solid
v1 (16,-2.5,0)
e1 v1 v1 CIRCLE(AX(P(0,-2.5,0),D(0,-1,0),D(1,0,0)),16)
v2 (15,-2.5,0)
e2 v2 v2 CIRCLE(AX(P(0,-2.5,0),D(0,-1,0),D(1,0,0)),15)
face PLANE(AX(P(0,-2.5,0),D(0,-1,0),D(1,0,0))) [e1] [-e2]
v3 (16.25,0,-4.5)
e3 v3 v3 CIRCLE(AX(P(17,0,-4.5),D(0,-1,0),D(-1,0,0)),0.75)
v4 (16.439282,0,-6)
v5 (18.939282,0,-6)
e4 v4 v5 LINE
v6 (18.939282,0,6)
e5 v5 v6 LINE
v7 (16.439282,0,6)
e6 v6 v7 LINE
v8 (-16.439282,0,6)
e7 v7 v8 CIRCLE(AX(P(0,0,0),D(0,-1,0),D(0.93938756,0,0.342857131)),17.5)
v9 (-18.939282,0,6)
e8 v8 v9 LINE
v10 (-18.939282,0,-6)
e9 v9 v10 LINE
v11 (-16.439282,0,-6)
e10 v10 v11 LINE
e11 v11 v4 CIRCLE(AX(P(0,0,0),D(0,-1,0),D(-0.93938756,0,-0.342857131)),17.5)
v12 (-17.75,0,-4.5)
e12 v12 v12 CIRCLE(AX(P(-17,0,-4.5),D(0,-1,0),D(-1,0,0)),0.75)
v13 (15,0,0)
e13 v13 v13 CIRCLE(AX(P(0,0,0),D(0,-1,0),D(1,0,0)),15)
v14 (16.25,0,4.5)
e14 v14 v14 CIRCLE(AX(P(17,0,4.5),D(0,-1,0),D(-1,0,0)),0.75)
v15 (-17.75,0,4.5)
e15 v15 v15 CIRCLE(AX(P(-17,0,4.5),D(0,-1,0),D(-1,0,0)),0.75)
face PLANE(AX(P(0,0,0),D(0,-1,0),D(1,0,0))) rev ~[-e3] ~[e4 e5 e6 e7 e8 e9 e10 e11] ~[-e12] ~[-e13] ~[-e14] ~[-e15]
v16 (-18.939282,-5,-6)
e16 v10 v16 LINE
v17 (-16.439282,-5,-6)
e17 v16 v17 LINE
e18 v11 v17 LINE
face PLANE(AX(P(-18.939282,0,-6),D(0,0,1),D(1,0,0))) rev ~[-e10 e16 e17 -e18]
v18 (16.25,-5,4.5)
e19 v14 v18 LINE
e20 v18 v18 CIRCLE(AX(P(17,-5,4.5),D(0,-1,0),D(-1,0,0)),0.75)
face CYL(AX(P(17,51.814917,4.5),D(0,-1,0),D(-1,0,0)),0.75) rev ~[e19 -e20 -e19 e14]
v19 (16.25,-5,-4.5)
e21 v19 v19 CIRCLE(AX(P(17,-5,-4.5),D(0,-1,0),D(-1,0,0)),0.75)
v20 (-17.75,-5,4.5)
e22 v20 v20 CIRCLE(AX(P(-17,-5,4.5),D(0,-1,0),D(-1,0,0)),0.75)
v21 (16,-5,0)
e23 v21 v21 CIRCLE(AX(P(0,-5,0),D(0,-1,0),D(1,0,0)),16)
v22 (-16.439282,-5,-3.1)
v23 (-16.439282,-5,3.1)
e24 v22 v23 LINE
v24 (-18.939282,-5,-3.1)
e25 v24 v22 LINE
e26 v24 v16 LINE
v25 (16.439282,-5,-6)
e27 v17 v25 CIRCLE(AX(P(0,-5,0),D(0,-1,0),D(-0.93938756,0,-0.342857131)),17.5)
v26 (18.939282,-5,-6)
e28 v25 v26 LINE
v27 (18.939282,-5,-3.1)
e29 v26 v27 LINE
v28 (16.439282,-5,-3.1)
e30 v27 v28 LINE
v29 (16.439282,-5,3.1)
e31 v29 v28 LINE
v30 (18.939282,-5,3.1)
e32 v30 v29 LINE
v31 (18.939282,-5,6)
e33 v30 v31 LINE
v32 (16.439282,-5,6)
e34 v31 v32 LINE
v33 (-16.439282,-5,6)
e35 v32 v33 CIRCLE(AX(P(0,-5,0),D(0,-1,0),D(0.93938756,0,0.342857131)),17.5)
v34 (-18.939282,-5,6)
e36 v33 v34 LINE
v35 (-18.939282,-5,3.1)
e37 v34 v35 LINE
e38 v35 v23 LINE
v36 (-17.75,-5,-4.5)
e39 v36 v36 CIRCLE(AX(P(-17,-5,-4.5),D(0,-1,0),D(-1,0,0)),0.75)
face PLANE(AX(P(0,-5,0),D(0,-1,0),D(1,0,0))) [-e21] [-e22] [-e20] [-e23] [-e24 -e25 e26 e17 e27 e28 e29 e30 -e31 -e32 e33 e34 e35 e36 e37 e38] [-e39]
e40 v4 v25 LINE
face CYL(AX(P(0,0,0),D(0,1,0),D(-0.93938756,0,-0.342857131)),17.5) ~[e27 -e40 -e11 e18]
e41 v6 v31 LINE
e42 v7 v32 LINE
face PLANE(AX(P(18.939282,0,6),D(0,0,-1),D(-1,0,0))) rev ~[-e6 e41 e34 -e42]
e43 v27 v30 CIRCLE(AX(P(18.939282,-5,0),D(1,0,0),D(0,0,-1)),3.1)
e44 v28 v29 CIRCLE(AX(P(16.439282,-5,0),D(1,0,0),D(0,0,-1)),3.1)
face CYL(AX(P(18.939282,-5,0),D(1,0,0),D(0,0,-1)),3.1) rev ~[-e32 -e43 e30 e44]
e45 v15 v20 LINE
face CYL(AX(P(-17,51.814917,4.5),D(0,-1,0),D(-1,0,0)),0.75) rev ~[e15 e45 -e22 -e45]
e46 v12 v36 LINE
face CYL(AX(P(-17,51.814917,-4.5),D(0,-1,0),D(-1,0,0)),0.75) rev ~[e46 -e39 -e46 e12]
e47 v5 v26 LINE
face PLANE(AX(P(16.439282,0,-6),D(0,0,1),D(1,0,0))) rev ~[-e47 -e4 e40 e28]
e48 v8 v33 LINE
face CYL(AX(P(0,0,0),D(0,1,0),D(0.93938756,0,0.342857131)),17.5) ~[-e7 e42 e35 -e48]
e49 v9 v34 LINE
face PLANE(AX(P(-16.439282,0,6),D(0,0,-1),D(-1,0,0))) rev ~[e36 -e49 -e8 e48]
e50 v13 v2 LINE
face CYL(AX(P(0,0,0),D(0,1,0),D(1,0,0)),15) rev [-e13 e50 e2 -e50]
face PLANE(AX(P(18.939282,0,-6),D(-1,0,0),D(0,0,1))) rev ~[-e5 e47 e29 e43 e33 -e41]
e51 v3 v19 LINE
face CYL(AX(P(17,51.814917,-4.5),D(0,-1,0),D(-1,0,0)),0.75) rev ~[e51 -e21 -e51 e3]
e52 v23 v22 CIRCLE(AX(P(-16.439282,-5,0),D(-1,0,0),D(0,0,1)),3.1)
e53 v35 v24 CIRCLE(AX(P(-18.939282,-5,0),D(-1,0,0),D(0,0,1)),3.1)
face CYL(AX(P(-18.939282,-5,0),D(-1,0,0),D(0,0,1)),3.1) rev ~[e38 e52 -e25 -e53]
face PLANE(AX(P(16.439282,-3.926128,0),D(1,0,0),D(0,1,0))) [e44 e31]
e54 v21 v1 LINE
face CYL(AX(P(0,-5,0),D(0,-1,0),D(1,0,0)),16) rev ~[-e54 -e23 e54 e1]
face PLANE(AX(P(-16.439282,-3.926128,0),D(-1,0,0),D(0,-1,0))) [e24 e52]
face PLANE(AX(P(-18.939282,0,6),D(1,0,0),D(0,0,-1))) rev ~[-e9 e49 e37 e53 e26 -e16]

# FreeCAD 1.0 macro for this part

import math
import FreeCAD as App
import Part
import Sketcher

V = App.Vector
Q = App.Units.Quantity

doc = App.newDocument("Part")
body = doc.addObject("PartDesign::Body", "Body")

sketch1 = doc.addObject("Sketcher::SketchObject", "Sketch")
body.addObject(sketch1)
sketch1.AttachmentSupport = (doc.XZ_Plane, [""])
sketch1.MapMode = "FlatFace"
sketch1.addGeometry([
    Part.LineSegment(V(-18.9, -6, 0), V(-16.4, -6, 0)),
    Part.ArcOfCircle(Part.Circle(V(0, 0, 0), V(0, 0, 1), 17.5), math.radians(-160), math.radians(-20)),
    Part.LineSegment(V(16.4, -6, 0), V(18.9, -6, 0)),
    Part.LineSegment(V(18.9, -6, 0), V(18.9, 6, 0)),
    Part.LineSegment(V(18.9, 6, 0), V(16.4, 6, 0)),
    Part.ArcOfCircle(Part.Circle(V(0, 0, 0), V(0, 0, 1), 17.5), math.radians(20), math.radians(160)),
    Part.LineSegment(V(-16.4, 6, 0), V(-18.9, 6, 0)),
    Part.LineSegment(V(-18.9, 6, 0), V(-18.9, -6, 0)),
    Part.Circle(V(0, 0, 0), V(0, 0, 1), 15),
], False)
sketch1.addConstraint([
    Sketcher.Constraint("Coincident", 0, 2, 1, 1),
    Sketcher.Constraint("Coincident", 1, 2, 2, 1),
    Sketcher.Constraint("Coincident", 2, 2, 3, 1),
    Sketcher.Constraint("Coincident", 3, 2, 4, 1),
    Sketcher.Constraint("Coincident", 4, 2, 5, 1),
    Sketcher.Constraint("Coincident", 5, 2, 6, 1),
    Sketcher.Constraint("Coincident", 6, 2, 7, 1),
    Sketcher.Constraint("Coincident", 7, 2, 0, 1),
    Sketcher.Constraint("Horizontal", 0),
    Sketcher.Constraint("Horizontal", 2),
    Sketcher.Constraint("Vertical", 3),
    Sketcher.Constraint("Horizontal", 4),
    Sketcher.Constraint("Horizontal", 6),
    Sketcher.Constraint("Vertical", 7),
    Sketcher.Constraint("Coincident", 1, 3, -1, 1),
    Sketcher.Constraint("Coincident", 5, 3, -1, 1),
    Sketcher.Constraint("Coincident", 8, 3, -1, 1),
    Sketcher.Constraint("Equal", 1, 5),
    Sketcher.Constraint("Symmetric", 2, 2, 6, 2, -1, 1),
    Sketcher.Constraint("Horizontal", 0, 2, 1, 2),
    Sketcher.Constraint("Horizontal", 4, 2, 5, 2),
    Sketcher.Constraint("Diameter", 8, Q("30 mm")),
    Sketcher.Constraint("Radius", 1, Q("17.5 mm")),
    Sketcher.Constraint("DistanceY", 3, 1, 3, 2, Q("12 mm")),
    Sketcher.Constraint("DistanceX", 0, 1, 0, 2, Q("2.5 mm")),
])
pad1 = doc.addObject("PartDesign::Pad", "Pad")
body.addObject(pad1)
pad1.Profile = sketch1
pad1.Length = 5

sketch2 = doc.addObject("Sketcher::SketchObject", "Sketch001")
body.addObject(sketch2)
sketch2.AttachmentSupport = (doc.XZ_Plane, [""])
sketch2.MapMode = "FlatFace"
sketch2.AttachmentOffset = App.Placement(V(0, 0, 5), App.Rotation())
sketch2.addGeometry([
    Part.Circle(V(0, 0, 0), V(0, 0, 1), 16),
    Part.Circle(V(0, 0, 0), V(0, 0, 1), 15),
], False)
sketch2.addConstraint([
    Sketcher.Constraint("Coincident", 0, 3, -1, 1),
    Sketcher.Constraint("Coincident", 1, 3, -1, 1),
    Sketcher.Constraint("Diameter", 0, Q("32 mm")),
    Sketcher.Constraint("Diameter", 1, Q("30 mm")),
])
pocket1 = doc.addObject("PartDesign::Pocket", "Pocket")
body.addObject(pocket1)
pocket1.Profile = sketch2
pocket1.Length = 2.5

sketch3 = doc.addObject("Sketcher::SketchObject", "Sketch002")
body.addObject(sketch3)
sketch3.AttachmentSupport = (doc.YZ_Plane, [""])
sketch3.MapMode = "FlatFace"
sketch3.AttachmentOffset = App.Placement(V(0, 0, -18.939282), App.Rotation())
sketch3.addGeometry([
    Part.LineSegment(V(-5, -3.1, 0), V(-5, 3.1, 0)),
    Part.ArcOfCircle(Part.Circle(V(-5, 0, 0), V(0, 0, 1), 3.1), math.radians(-90), math.radians(90)),
], False)
sketch3.addConstraint([
    Sketcher.Constraint("Coincident", 0, 1, 1, 1),
    Sketcher.Constraint("Coincident", 1, 2, 0, 2),
    Sketcher.Constraint("Vertical", 0),
    Sketcher.Constraint("PointOnObject", 1, 3, -1),
    Sketcher.Constraint("Vertical", 1, 3, 0, 1),
    Sketcher.Constraint("Radius", 1, Q("3.1 mm")),
    Sketcher.Constraint("DistanceX", 1, 3, -1, 1, Q("5 mm")),
])
pocket2 = doc.addObject("PartDesign::Pocket", "Pocket001")
body.addObject(pocket2)
pocket2.Profile = sketch3
pocket2.Length = 2.5
pocket2.Reversed = True

sketch4 = doc.addObject("Sketcher::SketchObject", "Sketch003")
body.addObject(sketch4)
sketch4.AttachmentSupport = (doc.YZ_Plane, [""])
sketch4.MapMode = "FlatFace"
sketch4.AttachmentOffset = App.Placement(V(0, 0, 18.939282), App.Rotation())
sketch4.addGeometry([
    Part.ArcOfCircle(Part.Circle(V(-5, 0, 0), V(0, 0, 1), 3.1), math.radians(-90), math.radians(90)),
    Part.LineSegment(V(-5, 3.1, 0), V(-5, -3.1, 0)),
], False)
sketch4.addConstraint([
    Sketcher.Constraint("Coincident", 0, 1, 1, 2),
    Sketcher.Constraint("Coincident", 1, 1, 0, 2),
    Sketcher.Constraint("Vertical", 1),
    Sketcher.Constraint("PointOnObject", 0, 3, -1),
    Sketcher.Constraint("Radius", 0, Q("3.1 mm")),
    Sketcher.Constraint("DistanceX", 0, 3, -1, 1, Q("5 mm")),
    Sketcher.Constraint("DistanceX", 0, 1, -1, 1, Q("5 mm")),
])
pocket3 = doc.addObject("PartDesign::Pocket", "Pocket002")
body.addObject(pocket3)
pocket3.Profile = sketch4
pocket3.Length = 2.5

sketch5 = doc.addObject("Sketcher::SketchObject", "Sketch004")
body.addObject(sketch5)
sketch5.AttachmentSupport = (doc.XZ_Plane, [""])
sketch5.MapMode = "FlatFace"
sketch5.addGeometry([
    Part.Circle(V(-17, -4.5, 0), V(0, 0, 1), 0.8),
    Part.Circle(V(-17, 4.5, 0), V(0, 0, 1), 0.8),
    Part.Circle(V(17, 4.5, 0), V(0, 0, 1), 0.8),
    Part.Circle(V(17, -4.5, 0), V(0, 0, 1), 0.8),
], False)
sketch5.addConstraint([
    Sketcher.Constraint("Equal", 0, 1),
    Sketcher.Constraint("Equal", 1, 2),
    Sketcher.Constraint("Equal", 2, 3),
    Sketcher.Constraint("Symmetric", 0, 3, 2, 3, -1, 1),
    Sketcher.Constraint("Symmetric", 1, 3, 3, 3, -1, 1),
    Sketcher.Constraint("Symmetric", 1, 3, 2, 3, -2),
    Sketcher.Constraint("Diameter", 0, Q("1.5 mm")),
    Sketcher.Constraint("DistanceX", 0, 3, -1, 1, Q("17 mm")),
    Sketcher.Constraint("DistanceY", 0, 3, 1, 3, Q("9 mm")),
])
doc.recompute()
hole = doc.addObject("PartDesign::Hole", "Hole")
body.addObject(hole)
hole.Profile = sketch5
hole.ThreadType = "None"
hole.Diameter = 1.5
hole.DepthType = "ThroughAll"
hole.Reversed = True

doc.recompute()
